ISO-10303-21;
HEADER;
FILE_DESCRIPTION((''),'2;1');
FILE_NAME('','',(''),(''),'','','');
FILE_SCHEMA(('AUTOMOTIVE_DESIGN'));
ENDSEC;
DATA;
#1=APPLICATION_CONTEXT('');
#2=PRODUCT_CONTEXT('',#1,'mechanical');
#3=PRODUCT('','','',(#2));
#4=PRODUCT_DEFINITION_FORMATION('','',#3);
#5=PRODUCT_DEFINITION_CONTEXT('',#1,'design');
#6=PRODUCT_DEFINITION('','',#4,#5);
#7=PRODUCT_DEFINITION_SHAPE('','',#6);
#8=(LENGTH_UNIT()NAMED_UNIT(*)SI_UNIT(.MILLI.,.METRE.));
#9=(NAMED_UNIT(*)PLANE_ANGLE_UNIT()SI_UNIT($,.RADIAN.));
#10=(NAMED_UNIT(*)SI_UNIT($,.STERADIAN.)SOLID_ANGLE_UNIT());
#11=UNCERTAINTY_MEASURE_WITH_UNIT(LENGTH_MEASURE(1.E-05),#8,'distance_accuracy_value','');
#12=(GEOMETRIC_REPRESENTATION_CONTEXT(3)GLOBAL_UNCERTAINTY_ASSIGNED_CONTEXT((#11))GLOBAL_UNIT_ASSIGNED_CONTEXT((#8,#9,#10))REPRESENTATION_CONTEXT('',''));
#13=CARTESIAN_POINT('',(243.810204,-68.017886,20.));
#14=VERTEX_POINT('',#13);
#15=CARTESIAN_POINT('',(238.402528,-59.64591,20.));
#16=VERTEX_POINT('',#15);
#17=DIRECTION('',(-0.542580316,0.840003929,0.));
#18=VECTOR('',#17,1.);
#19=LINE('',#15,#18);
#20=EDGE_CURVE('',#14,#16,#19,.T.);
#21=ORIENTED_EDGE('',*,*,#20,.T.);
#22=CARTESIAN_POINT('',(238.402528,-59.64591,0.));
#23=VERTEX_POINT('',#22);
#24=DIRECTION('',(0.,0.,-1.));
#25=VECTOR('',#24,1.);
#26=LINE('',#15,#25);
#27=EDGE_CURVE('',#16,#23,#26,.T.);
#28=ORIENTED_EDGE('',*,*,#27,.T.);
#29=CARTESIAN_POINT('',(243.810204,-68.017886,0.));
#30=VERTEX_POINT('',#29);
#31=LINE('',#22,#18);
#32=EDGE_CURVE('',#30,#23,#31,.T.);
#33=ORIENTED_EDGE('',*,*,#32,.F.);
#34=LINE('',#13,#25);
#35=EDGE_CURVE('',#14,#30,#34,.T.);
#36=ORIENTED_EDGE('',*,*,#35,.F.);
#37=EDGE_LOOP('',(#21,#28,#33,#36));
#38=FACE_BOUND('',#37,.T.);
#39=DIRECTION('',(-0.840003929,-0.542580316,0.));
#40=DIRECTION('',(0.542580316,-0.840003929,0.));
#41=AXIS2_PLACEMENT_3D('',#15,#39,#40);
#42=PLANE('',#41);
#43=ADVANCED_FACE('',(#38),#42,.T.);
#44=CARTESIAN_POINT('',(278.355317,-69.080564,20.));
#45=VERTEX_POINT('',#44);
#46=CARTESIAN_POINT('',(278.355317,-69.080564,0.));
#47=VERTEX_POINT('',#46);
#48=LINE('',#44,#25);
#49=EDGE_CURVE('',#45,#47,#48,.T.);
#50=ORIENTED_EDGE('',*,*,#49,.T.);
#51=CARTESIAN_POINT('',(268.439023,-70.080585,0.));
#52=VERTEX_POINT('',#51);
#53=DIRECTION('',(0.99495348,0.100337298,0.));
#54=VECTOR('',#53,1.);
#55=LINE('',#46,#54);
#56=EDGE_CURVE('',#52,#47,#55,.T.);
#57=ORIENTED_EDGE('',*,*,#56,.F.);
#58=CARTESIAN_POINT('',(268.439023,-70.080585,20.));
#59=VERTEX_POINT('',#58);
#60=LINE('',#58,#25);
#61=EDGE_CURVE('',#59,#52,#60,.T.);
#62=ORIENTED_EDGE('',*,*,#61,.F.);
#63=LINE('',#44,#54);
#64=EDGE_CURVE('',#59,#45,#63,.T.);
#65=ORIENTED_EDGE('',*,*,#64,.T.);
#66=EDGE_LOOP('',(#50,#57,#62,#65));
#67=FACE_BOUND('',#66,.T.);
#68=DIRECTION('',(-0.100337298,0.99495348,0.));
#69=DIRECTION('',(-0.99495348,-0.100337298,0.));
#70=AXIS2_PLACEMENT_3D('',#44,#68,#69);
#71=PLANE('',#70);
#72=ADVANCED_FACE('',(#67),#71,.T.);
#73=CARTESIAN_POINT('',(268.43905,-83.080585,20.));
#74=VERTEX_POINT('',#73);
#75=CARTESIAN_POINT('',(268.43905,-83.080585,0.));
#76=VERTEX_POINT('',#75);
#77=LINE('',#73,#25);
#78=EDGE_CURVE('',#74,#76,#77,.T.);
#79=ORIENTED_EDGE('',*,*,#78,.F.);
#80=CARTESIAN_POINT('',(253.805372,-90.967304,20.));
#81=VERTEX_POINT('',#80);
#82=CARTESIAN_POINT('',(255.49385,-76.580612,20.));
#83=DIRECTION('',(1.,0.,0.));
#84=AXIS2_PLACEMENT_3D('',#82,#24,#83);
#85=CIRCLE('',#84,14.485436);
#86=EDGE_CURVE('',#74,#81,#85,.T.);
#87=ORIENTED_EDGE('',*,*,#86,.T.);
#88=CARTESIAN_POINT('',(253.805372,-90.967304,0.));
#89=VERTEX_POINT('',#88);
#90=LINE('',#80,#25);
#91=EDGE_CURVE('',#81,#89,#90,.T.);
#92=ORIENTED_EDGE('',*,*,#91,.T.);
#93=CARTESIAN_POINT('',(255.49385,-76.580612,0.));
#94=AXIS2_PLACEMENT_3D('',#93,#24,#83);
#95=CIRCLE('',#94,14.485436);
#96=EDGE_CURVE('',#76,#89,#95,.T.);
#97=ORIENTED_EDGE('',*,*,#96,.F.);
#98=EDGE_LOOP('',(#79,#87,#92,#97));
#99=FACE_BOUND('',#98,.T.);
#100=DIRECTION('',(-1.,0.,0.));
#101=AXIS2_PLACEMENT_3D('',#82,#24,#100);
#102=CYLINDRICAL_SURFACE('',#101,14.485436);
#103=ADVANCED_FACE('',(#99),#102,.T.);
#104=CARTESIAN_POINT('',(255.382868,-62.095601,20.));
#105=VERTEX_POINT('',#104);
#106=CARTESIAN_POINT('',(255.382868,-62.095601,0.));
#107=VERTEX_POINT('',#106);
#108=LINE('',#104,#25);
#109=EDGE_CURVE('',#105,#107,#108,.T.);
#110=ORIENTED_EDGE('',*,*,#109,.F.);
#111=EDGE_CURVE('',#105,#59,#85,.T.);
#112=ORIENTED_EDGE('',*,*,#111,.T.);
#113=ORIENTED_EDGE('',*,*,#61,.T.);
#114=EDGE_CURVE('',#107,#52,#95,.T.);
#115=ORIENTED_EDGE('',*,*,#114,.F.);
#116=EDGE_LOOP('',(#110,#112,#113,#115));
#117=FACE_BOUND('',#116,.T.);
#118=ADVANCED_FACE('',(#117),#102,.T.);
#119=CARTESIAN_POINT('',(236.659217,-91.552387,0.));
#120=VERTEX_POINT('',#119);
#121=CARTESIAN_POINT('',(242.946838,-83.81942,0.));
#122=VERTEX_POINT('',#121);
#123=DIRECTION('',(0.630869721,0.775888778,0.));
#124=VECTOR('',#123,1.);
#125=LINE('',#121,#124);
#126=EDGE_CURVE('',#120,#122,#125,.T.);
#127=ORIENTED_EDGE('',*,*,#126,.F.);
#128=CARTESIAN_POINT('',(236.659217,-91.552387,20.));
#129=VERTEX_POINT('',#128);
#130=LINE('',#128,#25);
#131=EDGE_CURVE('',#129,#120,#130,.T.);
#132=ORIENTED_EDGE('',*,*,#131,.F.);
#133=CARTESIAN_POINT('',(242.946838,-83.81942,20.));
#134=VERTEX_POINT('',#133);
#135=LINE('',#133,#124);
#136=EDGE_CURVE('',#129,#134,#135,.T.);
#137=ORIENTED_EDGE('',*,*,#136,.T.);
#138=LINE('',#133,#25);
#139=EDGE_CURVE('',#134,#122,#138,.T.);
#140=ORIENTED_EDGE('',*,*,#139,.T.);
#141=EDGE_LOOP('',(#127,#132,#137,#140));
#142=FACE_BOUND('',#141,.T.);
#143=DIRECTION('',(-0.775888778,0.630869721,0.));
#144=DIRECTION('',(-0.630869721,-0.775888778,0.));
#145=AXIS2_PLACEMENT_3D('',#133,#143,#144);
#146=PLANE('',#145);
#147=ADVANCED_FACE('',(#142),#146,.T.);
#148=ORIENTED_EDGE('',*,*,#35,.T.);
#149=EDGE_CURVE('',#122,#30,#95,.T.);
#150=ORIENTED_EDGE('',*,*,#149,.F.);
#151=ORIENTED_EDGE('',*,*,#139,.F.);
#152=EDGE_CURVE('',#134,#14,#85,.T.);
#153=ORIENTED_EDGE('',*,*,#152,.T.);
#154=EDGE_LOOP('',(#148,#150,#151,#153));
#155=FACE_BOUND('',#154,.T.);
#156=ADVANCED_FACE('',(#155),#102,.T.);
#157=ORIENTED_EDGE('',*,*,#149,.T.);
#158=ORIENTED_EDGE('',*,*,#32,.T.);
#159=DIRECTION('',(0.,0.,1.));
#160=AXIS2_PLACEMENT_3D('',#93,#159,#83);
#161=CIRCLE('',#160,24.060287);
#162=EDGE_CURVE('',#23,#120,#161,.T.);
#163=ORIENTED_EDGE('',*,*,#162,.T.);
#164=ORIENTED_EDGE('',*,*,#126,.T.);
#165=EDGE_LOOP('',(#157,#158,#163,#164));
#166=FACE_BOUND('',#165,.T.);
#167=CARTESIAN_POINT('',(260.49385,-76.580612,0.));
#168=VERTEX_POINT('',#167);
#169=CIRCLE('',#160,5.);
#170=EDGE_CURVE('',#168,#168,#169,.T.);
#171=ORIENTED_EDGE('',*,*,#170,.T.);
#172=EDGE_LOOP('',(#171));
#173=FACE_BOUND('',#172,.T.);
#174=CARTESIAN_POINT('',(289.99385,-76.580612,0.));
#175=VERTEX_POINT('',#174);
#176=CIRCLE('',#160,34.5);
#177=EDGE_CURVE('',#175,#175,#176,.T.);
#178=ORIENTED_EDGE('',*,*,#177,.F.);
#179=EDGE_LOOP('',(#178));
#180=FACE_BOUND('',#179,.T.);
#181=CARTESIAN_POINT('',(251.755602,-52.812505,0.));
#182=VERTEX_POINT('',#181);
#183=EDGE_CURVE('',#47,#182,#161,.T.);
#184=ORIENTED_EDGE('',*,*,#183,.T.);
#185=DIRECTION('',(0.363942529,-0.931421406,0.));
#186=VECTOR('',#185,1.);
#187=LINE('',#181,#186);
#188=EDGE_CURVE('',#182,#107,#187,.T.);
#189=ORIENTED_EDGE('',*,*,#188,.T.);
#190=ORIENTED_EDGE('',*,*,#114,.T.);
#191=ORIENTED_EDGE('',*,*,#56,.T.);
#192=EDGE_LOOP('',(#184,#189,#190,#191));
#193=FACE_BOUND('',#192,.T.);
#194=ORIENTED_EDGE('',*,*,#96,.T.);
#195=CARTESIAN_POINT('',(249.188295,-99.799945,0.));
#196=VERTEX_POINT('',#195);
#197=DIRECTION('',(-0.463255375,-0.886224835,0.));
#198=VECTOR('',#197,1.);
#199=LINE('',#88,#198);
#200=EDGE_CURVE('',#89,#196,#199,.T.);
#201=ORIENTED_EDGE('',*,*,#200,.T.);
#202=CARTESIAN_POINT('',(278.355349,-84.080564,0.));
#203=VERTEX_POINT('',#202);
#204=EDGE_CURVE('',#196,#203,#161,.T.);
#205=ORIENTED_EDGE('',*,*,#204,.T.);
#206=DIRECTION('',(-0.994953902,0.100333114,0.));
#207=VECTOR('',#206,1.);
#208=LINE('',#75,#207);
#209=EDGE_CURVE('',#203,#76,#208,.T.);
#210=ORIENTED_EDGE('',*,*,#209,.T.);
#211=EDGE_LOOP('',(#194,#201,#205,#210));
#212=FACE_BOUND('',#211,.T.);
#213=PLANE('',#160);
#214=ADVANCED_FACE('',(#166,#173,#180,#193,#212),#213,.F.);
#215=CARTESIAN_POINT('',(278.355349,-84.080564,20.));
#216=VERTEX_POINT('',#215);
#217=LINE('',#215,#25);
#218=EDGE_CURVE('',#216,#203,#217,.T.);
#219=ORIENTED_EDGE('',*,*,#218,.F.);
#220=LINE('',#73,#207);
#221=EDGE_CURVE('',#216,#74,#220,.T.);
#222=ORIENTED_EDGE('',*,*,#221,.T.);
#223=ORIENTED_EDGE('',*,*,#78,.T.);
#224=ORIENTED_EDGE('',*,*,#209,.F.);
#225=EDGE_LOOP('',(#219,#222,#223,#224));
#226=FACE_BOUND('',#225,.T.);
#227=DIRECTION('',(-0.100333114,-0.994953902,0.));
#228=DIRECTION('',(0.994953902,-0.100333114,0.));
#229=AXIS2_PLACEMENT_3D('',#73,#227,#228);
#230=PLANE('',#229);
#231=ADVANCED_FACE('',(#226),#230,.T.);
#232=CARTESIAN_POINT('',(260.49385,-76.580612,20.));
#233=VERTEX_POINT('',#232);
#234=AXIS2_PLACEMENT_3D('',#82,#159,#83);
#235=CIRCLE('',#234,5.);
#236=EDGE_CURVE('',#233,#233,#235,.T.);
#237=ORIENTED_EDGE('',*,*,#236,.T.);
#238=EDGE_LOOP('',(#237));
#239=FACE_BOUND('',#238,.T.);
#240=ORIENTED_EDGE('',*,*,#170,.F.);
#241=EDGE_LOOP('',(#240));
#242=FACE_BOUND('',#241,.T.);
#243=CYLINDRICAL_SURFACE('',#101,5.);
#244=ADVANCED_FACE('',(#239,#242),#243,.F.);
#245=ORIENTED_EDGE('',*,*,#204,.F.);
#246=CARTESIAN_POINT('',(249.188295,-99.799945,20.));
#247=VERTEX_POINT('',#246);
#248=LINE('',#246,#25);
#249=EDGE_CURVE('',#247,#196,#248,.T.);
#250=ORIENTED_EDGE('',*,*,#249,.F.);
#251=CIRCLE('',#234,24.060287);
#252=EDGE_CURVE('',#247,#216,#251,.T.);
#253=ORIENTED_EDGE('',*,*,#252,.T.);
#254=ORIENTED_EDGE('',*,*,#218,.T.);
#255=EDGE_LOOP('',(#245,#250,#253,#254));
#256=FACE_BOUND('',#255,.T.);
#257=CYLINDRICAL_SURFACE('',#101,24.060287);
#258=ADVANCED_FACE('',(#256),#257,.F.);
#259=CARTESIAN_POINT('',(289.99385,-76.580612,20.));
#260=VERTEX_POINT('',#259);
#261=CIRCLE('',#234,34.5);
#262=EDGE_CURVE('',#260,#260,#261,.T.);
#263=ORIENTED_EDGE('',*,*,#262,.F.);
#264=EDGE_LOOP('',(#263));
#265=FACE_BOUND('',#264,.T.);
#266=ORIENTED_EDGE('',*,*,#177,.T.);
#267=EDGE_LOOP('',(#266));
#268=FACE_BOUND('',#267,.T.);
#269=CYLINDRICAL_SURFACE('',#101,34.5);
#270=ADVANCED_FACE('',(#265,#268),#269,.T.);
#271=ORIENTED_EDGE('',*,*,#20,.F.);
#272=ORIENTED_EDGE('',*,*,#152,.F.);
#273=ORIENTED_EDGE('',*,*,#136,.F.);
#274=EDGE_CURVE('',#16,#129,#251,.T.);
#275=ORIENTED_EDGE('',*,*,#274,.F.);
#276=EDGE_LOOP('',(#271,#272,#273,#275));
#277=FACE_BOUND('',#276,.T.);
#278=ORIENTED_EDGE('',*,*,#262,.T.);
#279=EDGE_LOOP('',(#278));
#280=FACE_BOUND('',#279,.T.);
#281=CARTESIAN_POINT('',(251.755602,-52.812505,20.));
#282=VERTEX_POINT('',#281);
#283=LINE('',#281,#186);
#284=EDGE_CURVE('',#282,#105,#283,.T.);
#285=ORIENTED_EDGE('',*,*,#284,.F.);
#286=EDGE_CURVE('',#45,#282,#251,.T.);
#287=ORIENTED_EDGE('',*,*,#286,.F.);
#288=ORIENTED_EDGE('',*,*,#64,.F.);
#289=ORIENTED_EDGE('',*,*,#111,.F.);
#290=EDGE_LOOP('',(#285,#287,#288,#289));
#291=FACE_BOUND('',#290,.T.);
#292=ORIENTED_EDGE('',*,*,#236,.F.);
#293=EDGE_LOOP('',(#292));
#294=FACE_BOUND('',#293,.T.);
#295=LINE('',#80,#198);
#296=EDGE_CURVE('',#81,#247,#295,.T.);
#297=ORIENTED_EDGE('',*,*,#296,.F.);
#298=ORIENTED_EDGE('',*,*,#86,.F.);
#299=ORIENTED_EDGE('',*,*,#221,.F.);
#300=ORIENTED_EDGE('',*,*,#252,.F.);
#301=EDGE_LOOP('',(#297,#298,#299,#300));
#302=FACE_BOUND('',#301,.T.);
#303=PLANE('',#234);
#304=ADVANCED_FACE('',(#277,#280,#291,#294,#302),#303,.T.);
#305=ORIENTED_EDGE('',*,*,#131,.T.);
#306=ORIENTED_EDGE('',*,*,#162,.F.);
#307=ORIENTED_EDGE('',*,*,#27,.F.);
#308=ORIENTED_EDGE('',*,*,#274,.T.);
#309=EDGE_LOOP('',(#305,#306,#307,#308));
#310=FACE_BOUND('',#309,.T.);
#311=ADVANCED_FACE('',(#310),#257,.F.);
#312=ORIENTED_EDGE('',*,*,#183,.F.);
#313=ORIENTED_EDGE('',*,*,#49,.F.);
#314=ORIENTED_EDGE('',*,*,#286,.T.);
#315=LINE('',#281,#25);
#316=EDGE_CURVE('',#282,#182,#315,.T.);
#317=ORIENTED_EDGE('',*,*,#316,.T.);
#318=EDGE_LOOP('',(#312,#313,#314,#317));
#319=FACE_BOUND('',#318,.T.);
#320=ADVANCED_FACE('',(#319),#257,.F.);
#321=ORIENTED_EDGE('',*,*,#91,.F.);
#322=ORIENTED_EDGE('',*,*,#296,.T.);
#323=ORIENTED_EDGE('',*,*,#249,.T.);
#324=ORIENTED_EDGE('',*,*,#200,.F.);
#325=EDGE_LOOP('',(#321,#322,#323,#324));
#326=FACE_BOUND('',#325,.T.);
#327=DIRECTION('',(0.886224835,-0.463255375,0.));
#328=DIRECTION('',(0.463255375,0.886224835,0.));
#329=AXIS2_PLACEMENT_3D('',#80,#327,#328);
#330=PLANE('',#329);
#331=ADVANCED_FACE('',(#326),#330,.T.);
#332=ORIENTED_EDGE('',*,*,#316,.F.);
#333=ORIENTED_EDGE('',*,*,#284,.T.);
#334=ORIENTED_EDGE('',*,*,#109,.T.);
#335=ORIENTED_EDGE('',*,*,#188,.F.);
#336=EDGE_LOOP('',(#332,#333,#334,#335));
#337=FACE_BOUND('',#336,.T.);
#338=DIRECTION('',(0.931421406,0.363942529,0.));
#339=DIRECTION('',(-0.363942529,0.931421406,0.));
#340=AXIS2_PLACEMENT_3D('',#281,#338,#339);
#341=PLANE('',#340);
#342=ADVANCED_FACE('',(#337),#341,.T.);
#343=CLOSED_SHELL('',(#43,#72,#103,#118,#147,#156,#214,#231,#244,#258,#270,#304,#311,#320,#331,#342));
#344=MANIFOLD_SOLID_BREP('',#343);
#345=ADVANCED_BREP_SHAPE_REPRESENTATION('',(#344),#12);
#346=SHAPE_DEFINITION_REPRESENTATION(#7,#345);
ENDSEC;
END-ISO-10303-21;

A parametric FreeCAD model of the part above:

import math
import FreeCAD as App
import Part
import Sketcher

V = App.Vector
Q = App.Units.Quantity

doc = App.newDocument("Part")
body = doc.addObject("PartDesign::Body", "Body")

# Sketch on XY plane
sketch1 = body.newObject("Sketcher::SketchObject", "Sketch")
sketch1.AttachmentSupport = (doc.getObject("XY_Plane"), [""])
sketch1.MapMode = "FlatFace"
sketch1.addGeometry([
    Part.Circle(V(255, -77, 0), V(0, 0, 1), 34),  # 0
    Part.ArcOfCircle(Part.Circle(V(255, -77, 0), V(0, 0, 1), 14), math.radians(-97), math.radians(-27)),  # 1
    Part.LineSegment(V(268, -83, 0), V(278, -84, 0)),  # 2
    Part.ArcOfCircle(Part.Circle(V(255, -77, 0), V(0, 0, 1), 24), math.radians(-105), math.radians(-18)),  # 3
    Part.LineSegment(V(249, -100, 0), V(254, -91, 0)),  # 4
    Part.Circle(V(255, -77, 0), V(0, 0, 1), 5),  # 5
    Part.ArcOfCircle(Part.Circle(V(255, -77, 0), V(0, 0, 1), 14), math.radians(144), math.radians(210)),  # 6
    Part.LineSegment(V(243, -84, 0), V(237, -92, 0)),  # 7
    Part.ArcOfCircle(Part.Circle(V(255, -77, 0), V(0, 0, 1), 24), math.radians(135), math.radians(218)),  # 8
    Part.LineSegment(V(238, -60, 0), V(244, -68, 0)),  # 9
    Part.LineSegment(V(255, -62, 0), V(252, -53, 0)),  # 10
    Part.ArcOfCircle(Part.Circle(V(255, -77, 0), V(0, 0, 1), 24), math.radians(18), math.radians(99)),  # 11
    Part.LineSegment(V(278, -69, 0), V(268, -70, 0)),  # 12
    Part.ArcOfCircle(Part.Circle(V(255, -77, 0), V(0, 0, 1), 14), math.radians(27), math.radians(90)),  # 13
], False)
sketch1.addConstraint([
    Sketcher.Constraint("Coincident", 1, 2, 2, 1),
    Sketcher.Constraint("Coincident", 2, 2, 3, 2),
    Sketcher.Constraint("Coincident", 3, 1, 4, 1),
    Sketcher.Constraint("Coincident", 4, 2, 1, 1),
    Sketcher.Constraint("Coincident", 6, 2, 7, 1),
    Sketcher.Constraint("Coincident", 7, 2, 8, 2),
    Sketcher.Constraint("Coincident", 8, 1, 9, 1),
    Sketcher.Constraint("Coincident", 9, 2, 6, 1),
    Sketcher.Constraint("Coincident", 10, 2, 11, 2),
    Sketcher.Constraint("Coincident", 11, 1, 12, 1),
    Sketcher.Constraint("Coincident", 12, 2, 13, 1),
    Sketcher.Constraint("Coincident", 13, 2, 10, 1),
    Sketcher.Constraint("Coincident", 1, 3, 0, 3),
    Sketcher.Constraint("Coincident", 3, 3, 0, 3),
    Sketcher.Constraint("Coincident", 5, 3, 0, 3),
    Sketcher.Constraint("Coincident", 6, 3, 0, 3),
    Sketcher.Constraint("Coincident", 8, 3, 0, 3),
    Sketcher.Constraint("Coincident", 11, 3, 0, 3),
    Sketcher.Constraint("Coincident", 13, 3, 0, 3),
    Sketcher.Constraint("Equal", 1, 6),
    Sketcher.Constraint("Equal", 3, 8),
    Sketcher.Constraint("Equal", 8, 11),
    Sketcher.Constraint("Equal", 6, 13),
    Sketcher.Constraint("Equal", 2, 4),
    Sketcher.Constraint("Equal", 4, 7),
    Sketcher.Constraint("Equal", 7, 9),
    Sketcher.Constraint("Equal", 9, 10),
    Sketcher.Constraint("Equal", 10, 12),
    Sketcher.Constraint("Diameter", 0, Q("69 mm")),
    Sketcher.Constraint("Diameter", 5, Q("10 mm")),
    Sketcher.Constraint("DistanceY", 2, 2, 11, 1, Q("15 mm")),
    Sketcher.Constraint("DistanceY", 1, 2, 12, 2, Q("13 mm")),
    Sketcher.Constraint("Radius", 1, Q("14.485436 mm")),
    Sketcher.Constraint("Radius", 3, Q("24.060287 mm")),
    Sketcher.Constraint("DistanceX", -1, 1, 10, 2, Q("251.755602 mm")),
    Sketcher.Constraint("DistanceY", 13, 2, -1, 1, Q("62.095601 mm")),
    Sketcher.Constraint("DistanceX", 1, 3, 1, 2, Q("12.9452 mm")),
    Sketcher.Constraint("DistanceX", -1, 1, 0, 3, Q("255.49385 mm")),
    Sketcher.Constraint("DistanceX", -1, 1, 4, 2, Q("253.805372 mm")),
    Sketcher.Constraint("DistanceY", 6, 2, -1, 1, Q("83.81942 mm")),
    Sketcher.Constraint("DistanceX", -1, 1, 8, 1, Q("238.402528 mm")),
])
pad1 = body.newObject("PartDesign::Pad", "Pad")
pad1.Profile = sketch1
pad1.Length = 20

doc.recompute()
